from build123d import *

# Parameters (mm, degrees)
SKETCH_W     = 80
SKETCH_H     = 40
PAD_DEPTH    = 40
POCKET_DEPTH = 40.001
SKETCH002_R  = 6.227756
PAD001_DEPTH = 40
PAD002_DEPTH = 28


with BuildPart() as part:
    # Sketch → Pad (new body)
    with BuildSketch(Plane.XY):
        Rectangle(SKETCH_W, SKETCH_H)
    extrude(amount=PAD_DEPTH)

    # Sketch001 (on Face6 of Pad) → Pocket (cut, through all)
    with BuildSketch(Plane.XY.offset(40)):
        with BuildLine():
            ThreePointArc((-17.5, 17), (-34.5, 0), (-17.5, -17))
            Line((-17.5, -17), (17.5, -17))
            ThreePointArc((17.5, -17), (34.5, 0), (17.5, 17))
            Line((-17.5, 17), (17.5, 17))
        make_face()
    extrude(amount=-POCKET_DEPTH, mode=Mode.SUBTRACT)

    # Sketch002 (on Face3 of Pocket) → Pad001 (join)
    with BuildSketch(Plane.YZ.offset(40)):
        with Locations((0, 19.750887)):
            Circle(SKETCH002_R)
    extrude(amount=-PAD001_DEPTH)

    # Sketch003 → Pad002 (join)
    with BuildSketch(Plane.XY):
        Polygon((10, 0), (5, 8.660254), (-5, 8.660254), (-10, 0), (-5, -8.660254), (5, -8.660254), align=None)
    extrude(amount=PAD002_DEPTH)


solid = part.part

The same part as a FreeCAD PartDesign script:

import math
import FreeCAD as App
import Part
import Sketcher
from FreeCAD import Vector
Q = App.Units.Quantity

doc = App.newDocument("Part")
body = doc.addObject("PartDesign::Body", "Body")

# Sketch on XY plane
sketch1 = doc.addObject("Sketcher::SketchObject", "Sketch")
body.addObject(sketch1)
sketch1.AttachmentSupport = (doc.XY_Plane, [""])
sketch1.MapMode = "FlatFace"
sketch1.addGeometry([
    Part.LineSegment(Vector(-40, 20, 0), Vector(-40, -20, 0)),
    Part.LineSegment(Vector(-40, -20, 0), Vector(40, -20, 0)),
    Part.LineSegment(Vector(40, -20, 0), Vector(40, 20, 0)),
    Part.LineSegment(Vector(40, 20, 0), Vector(-40, 20, 0)),
], False)
sketch1.addConstraint([
    Sketcher.Constraint("Coincident", 0, 2, 1, 1),
    Sketcher.Constraint("Coincident", 1, 2, 2, 1),
    Sketcher.Constraint("Coincident", 2, 2, 3, 1),
    Sketcher.Constraint("Coincident", 3, 2, 0, 1),
    Sketcher.Constraint("Vertical", 0),
    Sketcher.Constraint("Horizontal", 1),
    Sketcher.Constraint("Vertical", 2),
    Sketcher.Constraint("Horizontal", 3),
    Sketcher.Constraint("Symmetric", 0, 2, 2, 2, -1, 1),
    Sketcher.Constraint("DistanceX", 1, 1, 1, 2, Q("80 mm")),
    Sketcher.Constraint("DistanceY", 0, 2, 0, 1, Q("40 mm")),
])
pad1 = doc.addObject("PartDesign::Pad", "Pad")
body.addObject(pad1)
pad1.Profile = sketch1
pad1.Length = 40

# Sketch on XY plane
sketch2 = doc.addObject("Sketcher::SketchObject", "Sketch001")
body.addObject(sketch2)
sketch2.AttachmentSupport = (doc.XY_Plane, [""])
sketch2.MapMode = "FlatFace"
sketch2.AttachmentOffset = App.Placement(Vector(0, 0, 40), App.Rotation())
sketch2.addGeometry([
    Part.ArcOfCircle(Part.Circle(Vector(-18, 0, 0), Vector(0, 0, 1), 17), math.radians(90), math.radians(270)),
    Part.LineSegment(Vector(-18, -17, 0), Vector(18, -17, 0)),
    Part.ArcOfCircle(Part.Circle(Vector(18, 0, 0), Vector(0, 0, 1), 17), math.radians(-90), math.radians(90)),
    Part.LineSegment(Vector(18, 17, 0), Vector(-18, 17, 0)),
], False)
sketch2.addConstraint([
    Sketcher.Constraint("Tangent", 0, 2, 1, 1),
    Sketcher.Constraint("Tangent", 1, 2, 2, 1),
    Sketcher.Constraint("Tangent", 2, 2, 3, 1),
    Sketcher.Constraint("Tangent", 3, 2, 0, 1),
    Sketcher.Constraint("Horizontal", 1),
    Sketcher.Constraint("Horizontal", 3),
    Sketcher.Constraint("Symmetric", 0, 3, 2, 3, -1, 1),
    Sketcher.Constraint("Radius", 0, Q("17 mm")),
    Sketcher.Constraint("DistanceX", 1, 1, 1, 2, Q("35 mm")),
])
pocket1 = doc.addObject("PartDesign::Pocket", "Pocket")
body.addObject(pocket1)
pocket1.Profile = sketch2
pocket1.Type = "ThroughAll"

# Sketch on YZ plane
sketch3 = doc.addObject("Sketcher::SketchObject", "Sketch002")
body.addObject(sketch3)
sketch3.AttachmentSupport = (doc.YZ_Plane, [""])
sketch3.MapMode = "FlatFace"
sketch3.AttachmentOffset = App.Placement(Vector(0, 0, 40), App.Rotation())
sketch3.addGeometry(Part.Circle(Vector(0, 20, 0), Vector(0, 0, 1), 6), False)
sketch3.addConstraint([
    Sketcher.Constraint("PointOnObject", 0, 3, -2),
    Sketcher.Constraint("Diameter", 0, Q("12.455512 mm")),
    Sketcher.Constraint("DistanceY", -1, 1, 0, 3, Q("19.750887 mm")),
])
pad2 = doc.addObject("PartDesign::Pad", "Pad001")
body.addObject(pad2)
pad2.Profile = sketch3
pad2.Length = 40
pad2.Reversed = True

# Sketch on XY plane
sketch4 = doc.addObject("Sketcher::SketchObject", "Sketch003")
body.addObject(sketch4)
sketch4.AttachmentSupport = (doc.XY_Plane, [""])
sketch4.MapMode = "FlatFace"
sketch4.addGeometry([
    Part.LineSegment(Vector(10, 0, 0), Vector(5, 9, 0)),  # 0
    Part.LineSegment(Vector(5, 9, 0), Vector(-5, 9, 0)),  # 1
    Part.LineSegment(Vector(-5, 9, 0), Vector(-10, 0, 0)),  # 2
    Part.LineSegment(Vector(-10, 0, 0), Vector(-5, -9, 0)),  # 3
    Part.LineSegment(Vector(-5, -9, 0), Vector(5, -9, 0)),  # 4
    Part.LineSegment(Vector(5, -9, 0), Vector(10, 0, 0)),  # 5
], False)
sketch4.addConstraint([
    Sketcher.Constraint("Coincident", 0, 2, 1, 1),
    Sketcher.Constraint("Coincident", 1, 2, 2, 1),
    Sketcher.Constraint("Coincident", 2, 2, 3, 1),
    Sketcher.Constraint("Coincident", 3, 2, 4, 1),
    Sketcher.Constraint("Coincident", 4, 2, 5, 1),
    Sketcher.Constraint("Coincident", 5, 2, 0, 1),
    Sketcher.Constraint("Horizontal", 1),
    Sketcher.Constraint("Horizontal", 4),
    Sketcher.Constraint("Symmetric", 0, 2, 3, 2, -1, 1),
    Sketcher.Constraint("Symmetric", 2, 2, 5, 2, -1, 1),
    Sketcher.Constraint("PointOnObject", 2, 2, -1),
    Sketcher.Constraint("Parallel", 2, 5),
    Sketcher.Constraint("Vertical", 1, 2, 3, 2),
    Sketcher.Constraint("DistanceX", 1, 2, 1, 1, Q("10 mm")),
    Sketcher.Constraint("Angle", 0, Q("120 deg")),
    Sketcher.Constraint("Distance", 0, Q("10 mm")),
])
pad3 = doc.addObject("PartDesign::Pad", "Pad002")
body.addObject(pad3)
pad3.Profile = sketch4
pad3.Length = 28

doc.recompute()
